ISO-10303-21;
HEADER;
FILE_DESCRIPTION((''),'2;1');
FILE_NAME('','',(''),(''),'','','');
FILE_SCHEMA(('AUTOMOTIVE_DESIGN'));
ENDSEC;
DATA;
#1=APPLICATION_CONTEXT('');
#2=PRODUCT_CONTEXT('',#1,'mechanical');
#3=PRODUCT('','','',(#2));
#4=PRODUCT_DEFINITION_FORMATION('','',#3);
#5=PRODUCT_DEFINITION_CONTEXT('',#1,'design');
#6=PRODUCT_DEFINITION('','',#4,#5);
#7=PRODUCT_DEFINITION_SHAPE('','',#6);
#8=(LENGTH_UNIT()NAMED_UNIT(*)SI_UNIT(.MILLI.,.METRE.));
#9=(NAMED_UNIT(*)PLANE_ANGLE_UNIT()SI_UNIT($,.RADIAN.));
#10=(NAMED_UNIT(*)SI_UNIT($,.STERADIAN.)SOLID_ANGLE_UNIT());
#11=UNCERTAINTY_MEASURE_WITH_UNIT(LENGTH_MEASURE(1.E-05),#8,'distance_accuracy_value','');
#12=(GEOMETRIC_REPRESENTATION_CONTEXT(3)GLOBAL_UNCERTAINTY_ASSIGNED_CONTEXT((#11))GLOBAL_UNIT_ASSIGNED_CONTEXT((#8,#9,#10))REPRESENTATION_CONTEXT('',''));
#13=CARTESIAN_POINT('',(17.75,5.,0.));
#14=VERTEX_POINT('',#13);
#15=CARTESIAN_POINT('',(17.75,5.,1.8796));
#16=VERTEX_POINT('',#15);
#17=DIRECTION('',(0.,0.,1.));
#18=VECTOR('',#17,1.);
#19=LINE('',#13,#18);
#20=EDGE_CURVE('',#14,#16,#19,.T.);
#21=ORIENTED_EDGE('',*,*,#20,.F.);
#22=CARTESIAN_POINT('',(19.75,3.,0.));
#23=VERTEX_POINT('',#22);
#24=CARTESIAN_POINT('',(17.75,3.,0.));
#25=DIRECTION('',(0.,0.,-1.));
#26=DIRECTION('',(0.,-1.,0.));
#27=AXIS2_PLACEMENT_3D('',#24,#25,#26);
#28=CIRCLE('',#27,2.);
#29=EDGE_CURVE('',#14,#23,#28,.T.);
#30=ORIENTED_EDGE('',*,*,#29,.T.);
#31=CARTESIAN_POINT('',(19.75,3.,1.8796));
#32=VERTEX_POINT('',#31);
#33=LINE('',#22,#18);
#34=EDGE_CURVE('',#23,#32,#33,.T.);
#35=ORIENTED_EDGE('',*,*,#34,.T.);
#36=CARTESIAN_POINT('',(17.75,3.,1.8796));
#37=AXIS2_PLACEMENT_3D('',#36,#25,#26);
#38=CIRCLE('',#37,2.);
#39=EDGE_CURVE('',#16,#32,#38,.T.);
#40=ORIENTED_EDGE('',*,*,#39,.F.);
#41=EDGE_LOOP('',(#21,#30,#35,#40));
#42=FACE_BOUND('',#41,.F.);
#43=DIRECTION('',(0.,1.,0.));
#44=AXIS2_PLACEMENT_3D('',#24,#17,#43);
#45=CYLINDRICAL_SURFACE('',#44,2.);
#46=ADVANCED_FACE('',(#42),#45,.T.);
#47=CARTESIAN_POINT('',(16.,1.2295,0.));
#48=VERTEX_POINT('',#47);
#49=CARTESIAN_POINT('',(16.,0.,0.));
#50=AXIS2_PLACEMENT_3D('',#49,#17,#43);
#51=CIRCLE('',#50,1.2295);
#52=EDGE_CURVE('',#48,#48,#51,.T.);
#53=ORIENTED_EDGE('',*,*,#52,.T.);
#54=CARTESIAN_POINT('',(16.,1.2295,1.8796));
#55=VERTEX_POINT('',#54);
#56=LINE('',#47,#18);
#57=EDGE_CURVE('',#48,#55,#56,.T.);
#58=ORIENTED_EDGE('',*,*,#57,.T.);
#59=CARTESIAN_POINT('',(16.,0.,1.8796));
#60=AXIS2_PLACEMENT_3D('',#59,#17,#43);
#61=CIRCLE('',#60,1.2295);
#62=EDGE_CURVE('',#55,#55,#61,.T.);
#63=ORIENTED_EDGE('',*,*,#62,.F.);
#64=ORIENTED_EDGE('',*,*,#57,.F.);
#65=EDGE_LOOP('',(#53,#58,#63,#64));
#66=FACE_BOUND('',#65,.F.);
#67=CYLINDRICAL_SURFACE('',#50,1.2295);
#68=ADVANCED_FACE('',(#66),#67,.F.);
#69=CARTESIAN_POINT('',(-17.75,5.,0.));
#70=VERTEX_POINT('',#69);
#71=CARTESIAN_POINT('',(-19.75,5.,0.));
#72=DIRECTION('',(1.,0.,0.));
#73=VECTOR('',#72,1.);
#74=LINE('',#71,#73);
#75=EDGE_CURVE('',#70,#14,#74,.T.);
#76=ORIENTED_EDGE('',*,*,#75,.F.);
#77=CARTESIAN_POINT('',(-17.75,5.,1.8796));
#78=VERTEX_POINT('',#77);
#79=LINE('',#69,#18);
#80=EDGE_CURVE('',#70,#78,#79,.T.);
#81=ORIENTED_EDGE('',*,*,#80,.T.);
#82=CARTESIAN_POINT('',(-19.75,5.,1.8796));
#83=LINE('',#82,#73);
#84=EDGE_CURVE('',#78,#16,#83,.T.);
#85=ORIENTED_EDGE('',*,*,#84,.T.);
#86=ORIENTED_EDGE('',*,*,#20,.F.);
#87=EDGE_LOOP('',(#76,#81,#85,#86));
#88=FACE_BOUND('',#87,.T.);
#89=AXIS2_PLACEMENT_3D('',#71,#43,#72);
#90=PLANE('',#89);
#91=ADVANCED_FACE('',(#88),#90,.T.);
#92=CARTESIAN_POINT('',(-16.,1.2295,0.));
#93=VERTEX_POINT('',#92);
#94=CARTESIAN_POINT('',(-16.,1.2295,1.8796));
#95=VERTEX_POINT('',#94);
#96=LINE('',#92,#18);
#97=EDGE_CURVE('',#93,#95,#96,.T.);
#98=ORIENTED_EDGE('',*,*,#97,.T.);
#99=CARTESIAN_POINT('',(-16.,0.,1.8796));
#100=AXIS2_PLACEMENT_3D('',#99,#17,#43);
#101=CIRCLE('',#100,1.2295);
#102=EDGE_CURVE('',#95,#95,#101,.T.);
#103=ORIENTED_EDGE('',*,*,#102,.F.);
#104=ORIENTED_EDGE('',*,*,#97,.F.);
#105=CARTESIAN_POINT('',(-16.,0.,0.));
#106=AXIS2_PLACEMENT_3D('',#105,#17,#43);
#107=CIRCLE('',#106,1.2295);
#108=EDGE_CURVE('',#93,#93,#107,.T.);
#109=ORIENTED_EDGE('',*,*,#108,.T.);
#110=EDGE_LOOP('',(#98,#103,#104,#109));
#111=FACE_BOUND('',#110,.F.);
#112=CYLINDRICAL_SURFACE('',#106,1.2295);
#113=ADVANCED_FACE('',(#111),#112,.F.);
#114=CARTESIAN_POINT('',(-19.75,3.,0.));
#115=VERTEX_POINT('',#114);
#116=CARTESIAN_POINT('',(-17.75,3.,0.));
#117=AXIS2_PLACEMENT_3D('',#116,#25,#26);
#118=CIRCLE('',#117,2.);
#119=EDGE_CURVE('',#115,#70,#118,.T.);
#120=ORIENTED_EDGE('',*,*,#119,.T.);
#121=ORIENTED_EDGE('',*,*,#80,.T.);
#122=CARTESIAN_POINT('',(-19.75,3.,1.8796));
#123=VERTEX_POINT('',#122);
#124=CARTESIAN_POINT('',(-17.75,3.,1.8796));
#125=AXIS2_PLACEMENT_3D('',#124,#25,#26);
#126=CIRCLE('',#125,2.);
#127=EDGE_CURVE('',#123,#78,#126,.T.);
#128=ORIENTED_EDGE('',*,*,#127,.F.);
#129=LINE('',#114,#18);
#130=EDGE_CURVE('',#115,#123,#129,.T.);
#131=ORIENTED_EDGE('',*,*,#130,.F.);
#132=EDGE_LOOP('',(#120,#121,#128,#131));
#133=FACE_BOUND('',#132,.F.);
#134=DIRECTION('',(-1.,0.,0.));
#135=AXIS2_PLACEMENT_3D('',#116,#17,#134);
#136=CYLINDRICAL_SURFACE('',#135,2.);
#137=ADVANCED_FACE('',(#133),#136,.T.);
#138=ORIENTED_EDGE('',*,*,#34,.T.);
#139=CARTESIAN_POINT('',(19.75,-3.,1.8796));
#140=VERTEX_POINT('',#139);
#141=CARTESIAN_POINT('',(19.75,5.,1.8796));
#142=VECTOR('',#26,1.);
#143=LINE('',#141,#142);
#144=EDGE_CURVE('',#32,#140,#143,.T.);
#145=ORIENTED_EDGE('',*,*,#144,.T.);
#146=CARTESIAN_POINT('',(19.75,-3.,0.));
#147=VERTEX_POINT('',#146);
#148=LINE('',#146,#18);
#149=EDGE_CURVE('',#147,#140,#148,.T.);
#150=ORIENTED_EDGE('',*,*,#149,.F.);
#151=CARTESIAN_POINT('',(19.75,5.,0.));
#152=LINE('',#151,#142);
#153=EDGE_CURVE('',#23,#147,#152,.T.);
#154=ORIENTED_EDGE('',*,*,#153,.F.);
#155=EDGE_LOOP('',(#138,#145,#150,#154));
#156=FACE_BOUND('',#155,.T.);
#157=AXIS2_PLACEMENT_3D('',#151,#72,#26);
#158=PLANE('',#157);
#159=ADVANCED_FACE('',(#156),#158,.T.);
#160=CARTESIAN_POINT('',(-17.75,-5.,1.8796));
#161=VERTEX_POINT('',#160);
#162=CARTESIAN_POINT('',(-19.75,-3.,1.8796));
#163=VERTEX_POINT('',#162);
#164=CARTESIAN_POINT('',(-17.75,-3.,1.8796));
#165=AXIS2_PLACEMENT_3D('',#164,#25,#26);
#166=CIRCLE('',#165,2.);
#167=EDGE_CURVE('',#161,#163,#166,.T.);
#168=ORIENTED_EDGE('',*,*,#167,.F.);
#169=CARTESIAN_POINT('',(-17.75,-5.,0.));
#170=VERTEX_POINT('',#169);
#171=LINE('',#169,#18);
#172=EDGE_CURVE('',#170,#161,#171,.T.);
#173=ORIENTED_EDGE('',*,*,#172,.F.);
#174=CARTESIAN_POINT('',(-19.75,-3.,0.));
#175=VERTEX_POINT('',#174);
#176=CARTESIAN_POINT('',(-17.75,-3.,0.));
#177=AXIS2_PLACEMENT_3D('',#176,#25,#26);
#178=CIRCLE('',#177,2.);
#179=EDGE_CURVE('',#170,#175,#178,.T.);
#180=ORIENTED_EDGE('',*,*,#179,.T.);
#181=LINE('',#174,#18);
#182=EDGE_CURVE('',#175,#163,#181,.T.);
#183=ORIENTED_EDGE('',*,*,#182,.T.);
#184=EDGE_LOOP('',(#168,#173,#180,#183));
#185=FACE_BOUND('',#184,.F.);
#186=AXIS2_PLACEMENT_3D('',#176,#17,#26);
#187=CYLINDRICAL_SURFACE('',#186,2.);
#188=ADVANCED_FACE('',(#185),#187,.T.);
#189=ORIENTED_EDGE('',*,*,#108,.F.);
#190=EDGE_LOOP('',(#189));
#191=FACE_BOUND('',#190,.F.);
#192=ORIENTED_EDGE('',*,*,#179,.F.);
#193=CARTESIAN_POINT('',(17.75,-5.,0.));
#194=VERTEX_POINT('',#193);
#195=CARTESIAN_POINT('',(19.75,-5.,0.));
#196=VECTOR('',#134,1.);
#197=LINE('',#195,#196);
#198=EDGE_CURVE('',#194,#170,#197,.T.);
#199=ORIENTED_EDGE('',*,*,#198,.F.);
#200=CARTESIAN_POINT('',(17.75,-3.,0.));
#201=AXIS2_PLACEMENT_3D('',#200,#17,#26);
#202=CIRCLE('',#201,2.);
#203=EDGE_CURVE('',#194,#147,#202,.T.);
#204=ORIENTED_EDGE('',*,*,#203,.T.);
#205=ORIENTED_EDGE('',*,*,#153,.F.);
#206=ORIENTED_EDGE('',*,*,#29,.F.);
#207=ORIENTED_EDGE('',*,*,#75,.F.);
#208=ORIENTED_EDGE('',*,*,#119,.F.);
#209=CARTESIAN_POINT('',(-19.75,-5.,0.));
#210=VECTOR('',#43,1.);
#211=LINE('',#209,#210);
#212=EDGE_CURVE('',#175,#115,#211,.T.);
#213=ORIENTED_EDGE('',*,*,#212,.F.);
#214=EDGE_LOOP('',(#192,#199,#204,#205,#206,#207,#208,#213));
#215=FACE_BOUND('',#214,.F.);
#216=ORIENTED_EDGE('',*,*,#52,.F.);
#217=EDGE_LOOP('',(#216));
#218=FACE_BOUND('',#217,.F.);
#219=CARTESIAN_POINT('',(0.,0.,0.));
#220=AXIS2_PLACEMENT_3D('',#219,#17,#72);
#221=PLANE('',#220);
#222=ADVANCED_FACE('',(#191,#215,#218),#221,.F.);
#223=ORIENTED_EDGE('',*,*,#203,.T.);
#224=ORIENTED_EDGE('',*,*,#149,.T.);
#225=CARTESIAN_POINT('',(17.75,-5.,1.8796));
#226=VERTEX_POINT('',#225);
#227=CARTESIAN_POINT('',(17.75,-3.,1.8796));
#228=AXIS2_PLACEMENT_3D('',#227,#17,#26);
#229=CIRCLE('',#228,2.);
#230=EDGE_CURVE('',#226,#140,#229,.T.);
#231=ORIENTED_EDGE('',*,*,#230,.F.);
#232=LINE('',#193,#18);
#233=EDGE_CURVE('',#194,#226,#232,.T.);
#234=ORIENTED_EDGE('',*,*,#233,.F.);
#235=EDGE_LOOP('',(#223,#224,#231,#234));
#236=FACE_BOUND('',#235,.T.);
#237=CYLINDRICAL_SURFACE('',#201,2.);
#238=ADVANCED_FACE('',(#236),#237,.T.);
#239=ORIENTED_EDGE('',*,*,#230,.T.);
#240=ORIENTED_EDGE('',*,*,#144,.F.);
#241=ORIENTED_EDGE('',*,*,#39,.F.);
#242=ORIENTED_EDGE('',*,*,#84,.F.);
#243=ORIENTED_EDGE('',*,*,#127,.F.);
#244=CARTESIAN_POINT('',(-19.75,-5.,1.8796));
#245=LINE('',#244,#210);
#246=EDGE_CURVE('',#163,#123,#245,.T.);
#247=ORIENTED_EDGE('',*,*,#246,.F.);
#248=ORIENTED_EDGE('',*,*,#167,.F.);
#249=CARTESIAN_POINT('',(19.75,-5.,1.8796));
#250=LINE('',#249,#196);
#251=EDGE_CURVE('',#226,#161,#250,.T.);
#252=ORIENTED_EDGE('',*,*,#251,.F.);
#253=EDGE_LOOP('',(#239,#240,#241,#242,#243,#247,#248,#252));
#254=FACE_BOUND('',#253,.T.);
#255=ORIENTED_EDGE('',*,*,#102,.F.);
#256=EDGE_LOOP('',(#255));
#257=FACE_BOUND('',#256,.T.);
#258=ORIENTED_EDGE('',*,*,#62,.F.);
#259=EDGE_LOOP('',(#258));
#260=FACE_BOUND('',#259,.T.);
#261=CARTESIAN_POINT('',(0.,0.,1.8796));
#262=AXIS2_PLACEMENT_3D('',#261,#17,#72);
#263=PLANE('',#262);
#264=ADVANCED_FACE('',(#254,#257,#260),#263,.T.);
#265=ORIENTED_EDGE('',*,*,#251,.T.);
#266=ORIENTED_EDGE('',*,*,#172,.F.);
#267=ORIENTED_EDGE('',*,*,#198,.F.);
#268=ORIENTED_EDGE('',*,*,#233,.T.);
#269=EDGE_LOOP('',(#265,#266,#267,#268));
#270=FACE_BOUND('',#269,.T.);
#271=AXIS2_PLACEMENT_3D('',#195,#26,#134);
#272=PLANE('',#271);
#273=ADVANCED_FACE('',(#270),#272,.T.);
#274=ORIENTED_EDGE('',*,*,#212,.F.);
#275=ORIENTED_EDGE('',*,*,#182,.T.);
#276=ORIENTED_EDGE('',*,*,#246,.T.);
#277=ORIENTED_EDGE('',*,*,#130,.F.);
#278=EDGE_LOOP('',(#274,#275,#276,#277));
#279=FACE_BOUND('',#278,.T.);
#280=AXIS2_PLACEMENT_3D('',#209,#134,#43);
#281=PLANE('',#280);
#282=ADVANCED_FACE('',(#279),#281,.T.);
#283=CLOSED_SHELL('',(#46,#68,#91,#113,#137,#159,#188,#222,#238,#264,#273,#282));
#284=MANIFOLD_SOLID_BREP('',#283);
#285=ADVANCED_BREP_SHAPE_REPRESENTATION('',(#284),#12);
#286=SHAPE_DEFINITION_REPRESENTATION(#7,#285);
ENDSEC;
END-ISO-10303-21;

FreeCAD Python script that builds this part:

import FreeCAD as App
import Part
import Sketcher

V = App.Vector


def edges_at(feature, points):
    """Names of the edges that pass closest to the given points."""
    edges = feature.Shape.Edges
    near = lambda p: min(range(len(edges)), key=lambda i: edges[i].distToShape(Part.Vertex(*p))[0])
    return sorted({f"Edge{near(p) + 1}" for p in points})

doc = App.newDocument("Part")
params = doc.addObject("Spreadsheet::Sheet", "Params")
for row, (alias, value) in enumerate([
    ("sketch1_height", "10 mm"),
    ("sketch1_width", "39.5 mm"),
    ("pad1_length", "1.8796 mm"),
    ("fillet_radius", "2 mm"),
    ("hole_diameter", "2.459 mm"),
], start=1):
    params.set(f"A{row}", alias)
    params.set(f"B{row}", "=" + value)
    params.setAlias(f"B{row}", alias)

body = doc.addObject("PartDesign::Body", "Body")

sketch1 = body.newObject("Sketcher::SketchObject", "Sketch")
sketch1.AttachmentSupport = (doc.getObject("XY_Plane"), [""])
sketch1.MapMode = "FlatFace"
sketch1.addGeometry(Part.LineSegment(V(-19.75, -5, 0), V(19.75, -5, 0)), False)
sketch1.addGeometry(Part.LineSegment(V(19.75, -5, 0), V(19.75, 5, 0)), False)
sketch1.addGeometry(Part.LineSegment(V(19.75, 5, 0), V(-19.75, 5, 0)), False)
sketch1.addGeometry(Part.LineSegment(V(-19.75, 5, 0), V(-19.75, -5, 0)), False)
sketch1.addConstraint(Sketcher.Constraint("Coincident", 0, 2, 1, 1))
sketch1.addConstraint(Sketcher.Constraint("Coincident", 1, 2, 2, 1))
sketch1.addConstraint(Sketcher.Constraint("Coincident", 2, 2, 3, 1))
sketch1.addConstraint(Sketcher.Constraint("Coincident", 3, 2, 0, 1))
sketch1.addConstraint(Sketcher.Constraint("Horizontal", 0))
sketch1.addConstraint(Sketcher.Constraint("Vertical", 1))
sketch1.addConstraint(Sketcher.Constraint("Horizontal", 2))
sketch1.addConstraint(Sketcher.Constraint("Vertical", 3))
sketch1.addConstraint(Sketcher.Constraint("Symmetric", 0, 2, 2, 2, -1, 1))
sketch1.addConstraint(Sketcher.Constraint("DistanceY", 1, 1, 1, 2, 10.0))
sketch1.addConstraint(Sketcher.Constraint("DistanceX", 0, 1, 0, 2, 39.5))
sketch1.setExpression("Constraints[9]", "Params.sketch1_height")
sketch1.setExpression("Constraints[10]", "Params.sketch1_width")
pad1 = body.newObject("PartDesign::Pad", "Pad")
pad1.Profile = sketch1
pad1.setExpression("Length", "Params.pad1_length")
doc.recompute()

fillet = body.newObject("PartDesign::Fillet", "Fillet")
fillet.Base = (pad1, edges_at(pad1, [
    (-19.75, 5, 0.94),
    (-19.75, -5, 0.94),
    (19.75, -5, 0.94),
    (19.75, 5, 0.94),
]))
fillet.setExpression("Radius", "Params.fillet_radius")

sketch2 = body.newObject("Sketcher::SketchObject", "Sketch001")
sketch2.AttachmentSupport = (doc.getObject("XY_Plane"), [""])
sketch2.MapMode = "FlatFace"
sketch2.addGeometry(Part.Circle(V(16, 0, 0), V(0, 0, 1), 1.2295), False)
sketch2.addGeometry(Part.Circle(V(-16, 0, 0), V(0, 0, 1), 1.2295), False)
sketch2.addConstraint(Sketcher.Constraint("Equal", 0, 1))
sketch2.addConstraint(Sketcher.Constraint("Symmetric", 0, 3, 1, 3, -1, 1))
sketch2.addConstraint(Sketcher.Constraint("PointOnObject", 0, 3, -1))
sketch2.addConstraint(Sketcher.Constraint("Diameter", 0, 2.459))
sketch2.addConstraint(Sketcher.Constraint("DistanceX", -1, 1, 0, 3, 16.0))
doc.recompute()
hole = body.newObject("PartDesign::Hole", "Hole")
hole.Profile = sketch2
hole.ThreadType = "None"
hole.setExpression("Diameter", "Params.hole_diameter")
hole.DepthType = "ThroughAll"
hole.Reversed = True

doc.recompute()
